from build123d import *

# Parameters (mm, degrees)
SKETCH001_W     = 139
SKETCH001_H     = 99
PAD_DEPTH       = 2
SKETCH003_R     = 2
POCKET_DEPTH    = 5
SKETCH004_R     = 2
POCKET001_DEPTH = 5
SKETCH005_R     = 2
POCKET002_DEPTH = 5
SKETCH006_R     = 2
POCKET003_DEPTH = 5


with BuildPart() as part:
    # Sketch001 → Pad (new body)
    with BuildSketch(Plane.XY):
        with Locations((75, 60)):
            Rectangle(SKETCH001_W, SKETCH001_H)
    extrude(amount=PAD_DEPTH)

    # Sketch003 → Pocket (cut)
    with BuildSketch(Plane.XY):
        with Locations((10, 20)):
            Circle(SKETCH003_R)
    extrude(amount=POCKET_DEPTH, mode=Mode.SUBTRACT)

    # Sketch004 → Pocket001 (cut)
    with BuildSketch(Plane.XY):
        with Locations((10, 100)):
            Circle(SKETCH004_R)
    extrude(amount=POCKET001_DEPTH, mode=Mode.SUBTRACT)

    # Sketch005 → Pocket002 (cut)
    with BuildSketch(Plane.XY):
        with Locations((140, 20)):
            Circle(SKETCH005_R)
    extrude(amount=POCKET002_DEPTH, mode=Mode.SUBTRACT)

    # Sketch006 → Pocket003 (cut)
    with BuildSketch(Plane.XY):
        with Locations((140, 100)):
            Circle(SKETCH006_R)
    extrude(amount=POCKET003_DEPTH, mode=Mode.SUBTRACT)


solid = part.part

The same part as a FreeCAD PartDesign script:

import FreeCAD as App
import Part
import Sketcher

V = App.Vector

doc = App.newDocument("Part")
params = doc.addObject("Spreadsheet::Sheet", "Params")
for row, (alias, value) in enumerate([
    ("sketch1_width", "139 mm"),
    ("sketch1_height", "99 mm"),
    ("pad1_length", "2 mm"),
    ("sketch2_diameter", "4 mm"),
    ("pocket1_length", "5 mm"),
    ("sketch3_diameter", "4 mm"),
    ("pocket2_length", "5 mm"),
    ("sketch4_diameter", "4 mm"),
    ("pocket3_length", "5 mm"),
    ("sketch5_diameter", "4 mm"),
    ("pocket4_length", "5 mm"),
], start=1):
    params.set(f"A{row}", alias)
    params.set(f"B{row}", "=" + value)
    params.setAlias(f"B{row}", alias)

body = doc.addObject("PartDesign::Body", "Body")

sketch1 = body.newObject("Sketcher::SketchObject", "Sketch")
sketch1.AttachmentSupport = (doc.getObject("XY_Plane"), [""])
sketch1.MapMode = "FlatFace"
sketch1.addGeometry(Part.LineSegment(V(5.5, 109.5, 0), V(5.5, 10.5, 0)), False)
sketch1.addGeometry(Part.LineSegment(V(5.5, 10.5, 0), V(144.5, 10.5, 0)), False)
sketch1.addGeometry(Part.LineSegment(V(144.5, 10.5, 0), V(144.5, 109.5, 0)), False)
sketch1.addGeometry(Part.LineSegment(V(144.5, 109.5, 0), V(5.5, 109.5, 0)), False)
sketch1.addConstraint(Sketcher.Constraint("Coincident", 0, 2, 1, 1))
sketch1.addConstraint(Sketcher.Constraint("Coincident", 1, 2, 2, 1))
sketch1.addConstraint(Sketcher.Constraint("Coincident", 2, 2, 3, 1))
sketch1.addConstraint(Sketcher.Constraint("Coincident", 3, 2, 0, 1))
sketch1.addConstraint(Sketcher.Constraint("Vertical", 0))
sketch1.addConstraint(Sketcher.Constraint("Horizontal", 1))
sketch1.addConstraint(Sketcher.Constraint("Vertical", 2))
sketch1.addConstraint(Sketcher.Constraint("Horizontal", 3))
sketch1.addConstraint(Sketcher.Constraint("DistanceX", 1, 1, 1, 2, 139.0))
sketch1.addConstraint(Sketcher.Constraint("DistanceY", 0, 2, 0, 1, 99.0))
sketch1.addConstraint(Sketcher.Constraint("DistanceX", -1, 1, 0, 2, 5.5))
sketch1.addConstraint(Sketcher.Constraint("DistanceY", -1, 1, 0, 2, 10.5))
sketch1.setExpression("Constraints[8]", "Params.sketch1_width")
sketch1.setExpression("Constraints[9]", "Params.sketch1_height")
pad1 = body.newObject("PartDesign::Pad", "Pad")
pad1.Profile = sketch1
pad1.setExpression("Length", "Params.pad1_length")

sketch2 = body.newObject("Sketcher::SketchObject", "Sketch001")
sketch2.AttachmentSupport = (doc.getObject("XY_Plane"), [""])
sketch2.MapMode = "FlatFace"
sketch2.addGeometry(Part.Circle(V(10, 20, 0), V(0, 0, 1), 2), False)
sketch2.addConstraint(Sketcher.Constraint("Diameter", 0, 4.0))
sketch2.addConstraint(Sketcher.Constraint("DistanceX", -1, 1, 0, 3, 10.0))
sketch2.addConstraint(Sketcher.Constraint("DistanceY", -1, 1, 0, 3, 20.0))
sketch2.setExpression("Constraints[0]", "Params.sketch2_diameter")
pocket1 = body.newObject("PartDesign::Pocket", "Pocket")
pocket1.Profile = sketch2
pocket1.setExpression("Length", "Params.pocket1_length")
pocket1.Reversed = True

sketch3 = body.newObject("Sketcher::SketchObject", "Sketch002")
sketch3.AttachmentSupport = (doc.getObject("XY_Plane"), [""])
sketch3.MapMode = "FlatFace"
sketch3.addGeometry(Part.Circle(V(10, 100, 0), V(0, 0, 1), 2), False)
sketch3.addConstraint(Sketcher.Constraint("Diameter", 0, 4.0))
sketch3.addConstraint(Sketcher.Constraint("DistanceX", -1, 1, 0, 3, 10.0))
sketch3.addConstraint(Sketcher.Constraint("DistanceY", -1, 1, 0, 3, 100.0))
sketch3.setExpression("Constraints[0]", "Params.sketch3_diameter")
pocket2 = body.newObject("PartDesign::Pocket", "Pocket001")
pocket2.Profile = sketch3
pocket2.setExpression("Length", "Params.pocket2_length")
pocket2.Reversed = True

sketch4 = body.newObject("Sketcher::SketchObject", "Sketch003")
sketch4.AttachmentSupport = (doc.getObject("XY_Plane"), [""])
sketch4.MapMode = "FlatFace"
sketch4.addGeometry(Part.Circle(V(140, 20, 0), V(0, 0, 1), 2), False)
sketch4.addConstraint(Sketcher.Constraint("Diameter", 0, 4.0))
sketch4.addConstraint(Sketcher.Constraint("DistanceX", -1, 1, 0, 3, 140.0))
sketch4.addConstraint(Sketcher.Constraint("DistanceY", -1, 1, 0, 3, 20.0))
sketch4.setExpression("Constraints[0]", "Params.sketch4_diameter")
pocket3 = body.newObject("PartDesign::Pocket", "Pocket002")
pocket3.Profile = sketch4
pocket3.setExpression("Length", "Params.pocket3_length")
pocket3.Reversed = True

sketch5 = body.newObject("Sketcher::SketchObject", "Sketch004")
sketch5.AttachmentSupport = (doc.getObject("XY_Plane"), [""])
sketch5.MapMode = "FlatFace"
sketch5.addGeometry(Part.Circle(V(140, 100, 0), V(0, 0, 1), 2), False)
sketch5.addConstraint(Sketcher.Constraint("Diameter", 0, 4.0))
sketch5.addConstraint(Sketcher.Constraint("DistanceX", -1, 1, 0, 3, 140.0))
sketch5.addConstraint(Sketcher.Constraint("DistanceY", -1, 1, 0, 3, 100.0))
sketch5.setExpression("Constraints[0]", "Params.sketch5_diameter")
pocket4 = body.newObject("PartDesign::Pocket", "Pocket003")
pocket4.Profile = sketch5
pocket4.setExpression("Length", "Params.pocket4_length")
pocket4.Reversed = True

doc.recompute()
